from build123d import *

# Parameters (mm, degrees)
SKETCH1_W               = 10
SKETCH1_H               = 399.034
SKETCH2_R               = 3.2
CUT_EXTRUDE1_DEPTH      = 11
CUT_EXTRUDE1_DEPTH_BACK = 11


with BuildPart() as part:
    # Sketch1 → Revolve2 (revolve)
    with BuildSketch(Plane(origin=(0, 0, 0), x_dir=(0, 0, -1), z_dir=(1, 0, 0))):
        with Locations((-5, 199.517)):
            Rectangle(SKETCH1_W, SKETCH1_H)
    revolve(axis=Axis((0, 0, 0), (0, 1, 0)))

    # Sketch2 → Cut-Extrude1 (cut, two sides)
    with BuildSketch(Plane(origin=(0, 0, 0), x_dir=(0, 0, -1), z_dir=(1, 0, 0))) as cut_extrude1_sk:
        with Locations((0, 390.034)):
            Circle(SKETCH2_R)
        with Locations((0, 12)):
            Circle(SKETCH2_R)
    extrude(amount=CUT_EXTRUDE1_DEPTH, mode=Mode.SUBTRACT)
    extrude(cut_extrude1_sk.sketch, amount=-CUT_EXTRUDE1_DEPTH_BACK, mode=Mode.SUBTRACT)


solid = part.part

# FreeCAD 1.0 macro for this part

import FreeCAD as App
import Part
import Sketcher
from FreeCAD import Vector

doc = App.newDocument("Part")
body = doc.addObject("PartDesign::Body", "Body")

sketch1 = body.newObject("Sketcher::SketchObject", "Sketch")
sketch1.AttachmentSupport = (doc.getObject("YZ_Plane"), [""])
sketch1.MapMode = "FlatFace"
sketch1.addGeometry(Part.LineSegment(Vector(399, 10, 0), Vector(0, 10, 0)), False)
sketch1.addGeometry(Part.LineSegment(Vector(0, 10, 0), Vector(0, 0, 0)), False)
sketch1.addGeometry(Part.LineSegment(Vector(0, 0, 0), Vector(399, 0, 0)), False)
sketch1.addGeometry(Part.LineSegment(Vector(399, 0, 0), Vector(399, 10, 0)), False)
sketch1.addConstraint(Sketcher.Constraint("Coincident", 0, 2, 1, 1))
sketch1.addConstraint(Sketcher.Constraint("Coincident", 1, 2, 2, 1))
sketch1.addConstraint(Sketcher.Constraint("Coincident", 2, 2, 3, 1))
sketch1.addConstraint(Sketcher.Constraint("Coincident", 3, 2, 0, 1))
sketch1.addConstraint(Sketcher.Constraint("Horizontal", 0))
sketch1.addConstraint(Sketcher.Constraint("Vertical", 1))
sketch1.addConstraint(Sketcher.Constraint("Horizontal", 2))
sketch1.addConstraint(Sketcher.Constraint("Vertical", 3))
sketch1.addConstraint(Sketcher.Constraint("Coincident", 1, 2, -1, 1))
sketch1.addConstraint(Sketcher.Constraint("DistanceY", 1, 2, 1, 1, 10.0))
sketch1.addConstraint(Sketcher.Constraint("DistanceX", 0, 2, 0, 1, 399.034))
revolution = body.newObject("PartDesign::Revolution", "Revolution")
revolution.Profile = sketch1
revolution.ReferenceAxis = (sketch1, ["H_Axis"])
revolution.Angle = 360

sketch2 = body.newObject("Sketcher::SketchObject", "Sketch001")
sketch2.AttachmentSupport = (doc.getObject("YZ_Plane"), [""])
sketch2.MapMode = "FlatFace"
sketch2.addGeometry(Part.Circle(Vector(390, 0, 0), Vector(0, 0, 1), 3.2), False)
sketch2.addGeometry(Part.Circle(Vector(12, 0, 0), Vector(0, 0, 1), 3.2), False)
sketch2.addConstraint(Sketcher.Constraint("Equal", 0, 1))
sketch2.addConstraint(Sketcher.Constraint("PointOnObject", 0, 3, -1))
sketch2.addConstraint(Sketcher.Constraint("PointOnObject", 1, 3, -1))
sketch2.addConstraint(Sketcher.Constraint("Diameter", 0, 6.4))
sketch2.addConstraint(Sketcher.Constraint("DistanceX", -1, 1, 1, 3, 12.0))
sketch2.addConstraint(Sketcher.Constraint("DistanceX", -1, 1, 0, 3, 390.034))
pocket1 = body.newObject("PartDesign::Pocket", "Pocket")
pocket1.Profile = sketch2
pocket1.Type = "ThroughAll"
pocket1.Midplane = True

doc.recompute()
